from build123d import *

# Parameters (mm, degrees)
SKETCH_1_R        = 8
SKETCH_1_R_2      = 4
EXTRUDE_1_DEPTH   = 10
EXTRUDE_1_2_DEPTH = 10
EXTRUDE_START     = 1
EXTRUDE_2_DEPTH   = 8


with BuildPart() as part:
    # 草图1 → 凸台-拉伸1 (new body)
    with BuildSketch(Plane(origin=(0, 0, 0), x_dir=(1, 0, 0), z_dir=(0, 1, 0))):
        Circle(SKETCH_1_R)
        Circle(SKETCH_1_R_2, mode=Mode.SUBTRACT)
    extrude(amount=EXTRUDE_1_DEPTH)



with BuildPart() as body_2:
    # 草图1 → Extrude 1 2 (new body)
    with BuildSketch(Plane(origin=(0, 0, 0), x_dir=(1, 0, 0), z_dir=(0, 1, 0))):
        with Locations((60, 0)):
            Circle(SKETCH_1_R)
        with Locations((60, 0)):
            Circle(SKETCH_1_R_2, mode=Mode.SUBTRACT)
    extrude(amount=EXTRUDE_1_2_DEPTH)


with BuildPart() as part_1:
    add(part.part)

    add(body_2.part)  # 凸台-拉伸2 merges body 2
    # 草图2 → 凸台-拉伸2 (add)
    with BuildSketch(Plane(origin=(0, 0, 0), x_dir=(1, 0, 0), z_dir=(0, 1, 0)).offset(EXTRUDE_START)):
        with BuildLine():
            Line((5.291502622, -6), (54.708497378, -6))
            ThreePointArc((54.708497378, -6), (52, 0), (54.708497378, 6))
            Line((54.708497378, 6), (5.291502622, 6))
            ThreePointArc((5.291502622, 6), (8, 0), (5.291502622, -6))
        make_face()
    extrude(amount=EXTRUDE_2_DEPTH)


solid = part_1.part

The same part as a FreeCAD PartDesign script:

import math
import FreeCAD as App
import Part
import Sketcher

doc = App.newDocument("Part")
params = doc.addObject("Spreadsheet::Sheet", "Params")
for row, (alias, value) in enumerate([
    ("sketch1_diameter", "16 mm"),
    ("sketch1_diameter2", "8 mm"),
    ("pad1_length", "10 mm"),
    ("sketch2_diameter", "16 mm"),
    ("sketch2_diameter2", "8 mm"),
    ("pad2_length", "10 mm"),
    ("sketch3_radius", "8 mm"),
    ("pad3_length", "8 mm"),
], start=1):
    params.set(f"A{row}", alias)
    params.set(f"B{row}", "=" + value)
    params.setAlias(f"B{row}", alias)

body = doc.addObject("PartDesign::Body", "Body")

# Sketch on XZ plane
sketch1 = body.newObject("Sketcher::SketchObject", "Sketch")
sketch1.AttachmentSupport = (doc.getObject("XZ_Plane"), [""])
sketch1.MapMode = "FlatFace"
sketch1.addGeometry(Part.Circle(App.Vector(0, 0, 0), App.Vector(0, 0, 1), 8), False)
sketch1.addGeometry(Part.Circle(App.Vector(0, 0, 0), App.Vector(0, 0, 1), 4), False)
sketch1.addConstraint(Sketcher.Constraint("Coincident", 0, 3, -1, 1))
sketch1.addConstraint(Sketcher.Constraint("Coincident", 1, 3, -1, 1))
sketch1.addConstraint(Sketcher.Constraint("Diameter", 0, 16.0))
sketch1.addConstraint(Sketcher.Constraint("Diameter", 1, 8.0))
sketch1.setExpression("Constraints[2]", "Params.sketch1_diameter")
sketch1.setExpression("Constraints[3]", "Params.sketch1_diameter2")
pad1 = body.newObject("PartDesign::Pad", "Pad")
pad1.Profile = sketch1
pad1.setExpression("Length", "Params.pad1_length")
pad1.Reversed = True
body2 = doc.addObject("PartDesign::Body", "Body001")

# Sketch on XZ plane
sketch2 = body2.newObject("Sketcher::SketchObject", "Sketch001")
sketch2.AttachmentSupport = (doc.getObject("XZ_Plane001"), [""])
sketch2.MapMode = "FlatFace"
sketch2.addGeometry(Part.Circle(App.Vector(60, 0, 0), App.Vector(0, 0, 1), 8), False)
sketch2.addGeometry(Part.Circle(App.Vector(60, 0, 0), App.Vector(0, 0, 1), 4), False)
sketch2.addConstraint(Sketcher.Constraint("Coincident", 1, 3, 0, 3))
sketch2.addConstraint(Sketcher.Constraint("PointOnObject", 0, 3, -1))
sketch2.addConstraint(Sketcher.Constraint("Diameter", 0, 16.0))
sketch2.addConstraint(Sketcher.Constraint("Diameter", 1, 8.0))
sketch2.addConstraint(Sketcher.Constraint("DistanceX", -1, 1, 0, 3, 60.0))
sketch2.setExpression("Constraints[2]", "Params.sketch2_diameter")
sketch2.setExpression("Constraints[3]", "Params.sketch2_diameter2")
pad2 = body2.newObject("PartDesign::Pad", "Pad001")
pad2.Profile = sketch2
pad2.setExpression("Length", "Params.pad2_length")
pad2.Reversed = True
body.AllowCompound = True
doc.recompute()

boolean = body.newObject("PartDesign::Boolean", "Boolean")
boolean.Type = "Fuse"
boolean.addObjects([body2])

# Sketch on XZ plane
sketch3 = body.newObject("Sketcher::SketchObject", "Sketch002")
sketch3.AttachmentSupport = (doc.getObject("XZ_Plane"), [""])
sketch3.MapMode = "FlatFace"
sketch3.AttachmentOffset = App.Placement(App.Vector(0, 0, -1), App.Rotation())
sketch3.addGeometry(Part.LineSegment(App.Vector(5, 6, 0), App.Vector(55, 6, 0)), False)
sketch3.addGeometry(Part.ArcOfCircle(Part.Circle(App.Vector(60, 0, 0), App.Vector(0, 0, 1), 8), math.radians(131), math.radians(229)), False)
sketch3.addGeometry(Part.LineSegment(App.Vector(55, -6, 0), App.Vector(5, -6, 0)), False)
sketch3.addGeometry(Part.ArcOfCircle(Part.Circle(App.Vector(0, 0, 0), App.Vector(0, 0, 1), 8), math.radians(-49), math.radians(49)), False)
sketch3.addConstraint(Sketcher.Constraint("Coincident", 0, 2, 1, 1))
sketch3.addConstraint(Sketcher.Constraint("Coincident", 1, 2, 2, 1))
sketch3.addConstraint(Sketcher.Constraint("Coincident", 2, 2, 3, 1))
sketch3.addConstraint(Sketcher.Constraint("Coincident", 3, 2, 0, 1))
sketch3.addConstraint(Sketcher.Constraint("Horizontal", 0))
sketch3.addConstraint(Sketcher.Constraint("Horizontal", 2))
sketch3.addConstraint(Sketcher.Constraint("Coincident", 3, 3, -1, 1))
sketch3.addConstraint(Sketcher.Constraint("Equal", 1, 3))
sketch3.addConstraint(Sketcher.Constraint("Symmetric", 0, 2, 1, 2, -1))
sketch3.addConstraint(Sketcher.Constraint("Radius", 1, 8.0))
sketch3.addConstraint(Sketcher.Constraint("DistanceX", -1, 1, 1, 3, 60.0))
sketch3.addConstraint(Sketcher.Constraint("DistanceY", -1, 1, 0, 2, 6.0))
sketch3.setExpression("Constraints[9]", "Params.sketch3_radius")
pad3 = body.newObject("PartDesign::Pad", "Pad002")
pad3.Profile = sketch3
pad3.setExpression("Length", "Params.pad3_length")
pad3.Reversed = True

doc.recompute()
